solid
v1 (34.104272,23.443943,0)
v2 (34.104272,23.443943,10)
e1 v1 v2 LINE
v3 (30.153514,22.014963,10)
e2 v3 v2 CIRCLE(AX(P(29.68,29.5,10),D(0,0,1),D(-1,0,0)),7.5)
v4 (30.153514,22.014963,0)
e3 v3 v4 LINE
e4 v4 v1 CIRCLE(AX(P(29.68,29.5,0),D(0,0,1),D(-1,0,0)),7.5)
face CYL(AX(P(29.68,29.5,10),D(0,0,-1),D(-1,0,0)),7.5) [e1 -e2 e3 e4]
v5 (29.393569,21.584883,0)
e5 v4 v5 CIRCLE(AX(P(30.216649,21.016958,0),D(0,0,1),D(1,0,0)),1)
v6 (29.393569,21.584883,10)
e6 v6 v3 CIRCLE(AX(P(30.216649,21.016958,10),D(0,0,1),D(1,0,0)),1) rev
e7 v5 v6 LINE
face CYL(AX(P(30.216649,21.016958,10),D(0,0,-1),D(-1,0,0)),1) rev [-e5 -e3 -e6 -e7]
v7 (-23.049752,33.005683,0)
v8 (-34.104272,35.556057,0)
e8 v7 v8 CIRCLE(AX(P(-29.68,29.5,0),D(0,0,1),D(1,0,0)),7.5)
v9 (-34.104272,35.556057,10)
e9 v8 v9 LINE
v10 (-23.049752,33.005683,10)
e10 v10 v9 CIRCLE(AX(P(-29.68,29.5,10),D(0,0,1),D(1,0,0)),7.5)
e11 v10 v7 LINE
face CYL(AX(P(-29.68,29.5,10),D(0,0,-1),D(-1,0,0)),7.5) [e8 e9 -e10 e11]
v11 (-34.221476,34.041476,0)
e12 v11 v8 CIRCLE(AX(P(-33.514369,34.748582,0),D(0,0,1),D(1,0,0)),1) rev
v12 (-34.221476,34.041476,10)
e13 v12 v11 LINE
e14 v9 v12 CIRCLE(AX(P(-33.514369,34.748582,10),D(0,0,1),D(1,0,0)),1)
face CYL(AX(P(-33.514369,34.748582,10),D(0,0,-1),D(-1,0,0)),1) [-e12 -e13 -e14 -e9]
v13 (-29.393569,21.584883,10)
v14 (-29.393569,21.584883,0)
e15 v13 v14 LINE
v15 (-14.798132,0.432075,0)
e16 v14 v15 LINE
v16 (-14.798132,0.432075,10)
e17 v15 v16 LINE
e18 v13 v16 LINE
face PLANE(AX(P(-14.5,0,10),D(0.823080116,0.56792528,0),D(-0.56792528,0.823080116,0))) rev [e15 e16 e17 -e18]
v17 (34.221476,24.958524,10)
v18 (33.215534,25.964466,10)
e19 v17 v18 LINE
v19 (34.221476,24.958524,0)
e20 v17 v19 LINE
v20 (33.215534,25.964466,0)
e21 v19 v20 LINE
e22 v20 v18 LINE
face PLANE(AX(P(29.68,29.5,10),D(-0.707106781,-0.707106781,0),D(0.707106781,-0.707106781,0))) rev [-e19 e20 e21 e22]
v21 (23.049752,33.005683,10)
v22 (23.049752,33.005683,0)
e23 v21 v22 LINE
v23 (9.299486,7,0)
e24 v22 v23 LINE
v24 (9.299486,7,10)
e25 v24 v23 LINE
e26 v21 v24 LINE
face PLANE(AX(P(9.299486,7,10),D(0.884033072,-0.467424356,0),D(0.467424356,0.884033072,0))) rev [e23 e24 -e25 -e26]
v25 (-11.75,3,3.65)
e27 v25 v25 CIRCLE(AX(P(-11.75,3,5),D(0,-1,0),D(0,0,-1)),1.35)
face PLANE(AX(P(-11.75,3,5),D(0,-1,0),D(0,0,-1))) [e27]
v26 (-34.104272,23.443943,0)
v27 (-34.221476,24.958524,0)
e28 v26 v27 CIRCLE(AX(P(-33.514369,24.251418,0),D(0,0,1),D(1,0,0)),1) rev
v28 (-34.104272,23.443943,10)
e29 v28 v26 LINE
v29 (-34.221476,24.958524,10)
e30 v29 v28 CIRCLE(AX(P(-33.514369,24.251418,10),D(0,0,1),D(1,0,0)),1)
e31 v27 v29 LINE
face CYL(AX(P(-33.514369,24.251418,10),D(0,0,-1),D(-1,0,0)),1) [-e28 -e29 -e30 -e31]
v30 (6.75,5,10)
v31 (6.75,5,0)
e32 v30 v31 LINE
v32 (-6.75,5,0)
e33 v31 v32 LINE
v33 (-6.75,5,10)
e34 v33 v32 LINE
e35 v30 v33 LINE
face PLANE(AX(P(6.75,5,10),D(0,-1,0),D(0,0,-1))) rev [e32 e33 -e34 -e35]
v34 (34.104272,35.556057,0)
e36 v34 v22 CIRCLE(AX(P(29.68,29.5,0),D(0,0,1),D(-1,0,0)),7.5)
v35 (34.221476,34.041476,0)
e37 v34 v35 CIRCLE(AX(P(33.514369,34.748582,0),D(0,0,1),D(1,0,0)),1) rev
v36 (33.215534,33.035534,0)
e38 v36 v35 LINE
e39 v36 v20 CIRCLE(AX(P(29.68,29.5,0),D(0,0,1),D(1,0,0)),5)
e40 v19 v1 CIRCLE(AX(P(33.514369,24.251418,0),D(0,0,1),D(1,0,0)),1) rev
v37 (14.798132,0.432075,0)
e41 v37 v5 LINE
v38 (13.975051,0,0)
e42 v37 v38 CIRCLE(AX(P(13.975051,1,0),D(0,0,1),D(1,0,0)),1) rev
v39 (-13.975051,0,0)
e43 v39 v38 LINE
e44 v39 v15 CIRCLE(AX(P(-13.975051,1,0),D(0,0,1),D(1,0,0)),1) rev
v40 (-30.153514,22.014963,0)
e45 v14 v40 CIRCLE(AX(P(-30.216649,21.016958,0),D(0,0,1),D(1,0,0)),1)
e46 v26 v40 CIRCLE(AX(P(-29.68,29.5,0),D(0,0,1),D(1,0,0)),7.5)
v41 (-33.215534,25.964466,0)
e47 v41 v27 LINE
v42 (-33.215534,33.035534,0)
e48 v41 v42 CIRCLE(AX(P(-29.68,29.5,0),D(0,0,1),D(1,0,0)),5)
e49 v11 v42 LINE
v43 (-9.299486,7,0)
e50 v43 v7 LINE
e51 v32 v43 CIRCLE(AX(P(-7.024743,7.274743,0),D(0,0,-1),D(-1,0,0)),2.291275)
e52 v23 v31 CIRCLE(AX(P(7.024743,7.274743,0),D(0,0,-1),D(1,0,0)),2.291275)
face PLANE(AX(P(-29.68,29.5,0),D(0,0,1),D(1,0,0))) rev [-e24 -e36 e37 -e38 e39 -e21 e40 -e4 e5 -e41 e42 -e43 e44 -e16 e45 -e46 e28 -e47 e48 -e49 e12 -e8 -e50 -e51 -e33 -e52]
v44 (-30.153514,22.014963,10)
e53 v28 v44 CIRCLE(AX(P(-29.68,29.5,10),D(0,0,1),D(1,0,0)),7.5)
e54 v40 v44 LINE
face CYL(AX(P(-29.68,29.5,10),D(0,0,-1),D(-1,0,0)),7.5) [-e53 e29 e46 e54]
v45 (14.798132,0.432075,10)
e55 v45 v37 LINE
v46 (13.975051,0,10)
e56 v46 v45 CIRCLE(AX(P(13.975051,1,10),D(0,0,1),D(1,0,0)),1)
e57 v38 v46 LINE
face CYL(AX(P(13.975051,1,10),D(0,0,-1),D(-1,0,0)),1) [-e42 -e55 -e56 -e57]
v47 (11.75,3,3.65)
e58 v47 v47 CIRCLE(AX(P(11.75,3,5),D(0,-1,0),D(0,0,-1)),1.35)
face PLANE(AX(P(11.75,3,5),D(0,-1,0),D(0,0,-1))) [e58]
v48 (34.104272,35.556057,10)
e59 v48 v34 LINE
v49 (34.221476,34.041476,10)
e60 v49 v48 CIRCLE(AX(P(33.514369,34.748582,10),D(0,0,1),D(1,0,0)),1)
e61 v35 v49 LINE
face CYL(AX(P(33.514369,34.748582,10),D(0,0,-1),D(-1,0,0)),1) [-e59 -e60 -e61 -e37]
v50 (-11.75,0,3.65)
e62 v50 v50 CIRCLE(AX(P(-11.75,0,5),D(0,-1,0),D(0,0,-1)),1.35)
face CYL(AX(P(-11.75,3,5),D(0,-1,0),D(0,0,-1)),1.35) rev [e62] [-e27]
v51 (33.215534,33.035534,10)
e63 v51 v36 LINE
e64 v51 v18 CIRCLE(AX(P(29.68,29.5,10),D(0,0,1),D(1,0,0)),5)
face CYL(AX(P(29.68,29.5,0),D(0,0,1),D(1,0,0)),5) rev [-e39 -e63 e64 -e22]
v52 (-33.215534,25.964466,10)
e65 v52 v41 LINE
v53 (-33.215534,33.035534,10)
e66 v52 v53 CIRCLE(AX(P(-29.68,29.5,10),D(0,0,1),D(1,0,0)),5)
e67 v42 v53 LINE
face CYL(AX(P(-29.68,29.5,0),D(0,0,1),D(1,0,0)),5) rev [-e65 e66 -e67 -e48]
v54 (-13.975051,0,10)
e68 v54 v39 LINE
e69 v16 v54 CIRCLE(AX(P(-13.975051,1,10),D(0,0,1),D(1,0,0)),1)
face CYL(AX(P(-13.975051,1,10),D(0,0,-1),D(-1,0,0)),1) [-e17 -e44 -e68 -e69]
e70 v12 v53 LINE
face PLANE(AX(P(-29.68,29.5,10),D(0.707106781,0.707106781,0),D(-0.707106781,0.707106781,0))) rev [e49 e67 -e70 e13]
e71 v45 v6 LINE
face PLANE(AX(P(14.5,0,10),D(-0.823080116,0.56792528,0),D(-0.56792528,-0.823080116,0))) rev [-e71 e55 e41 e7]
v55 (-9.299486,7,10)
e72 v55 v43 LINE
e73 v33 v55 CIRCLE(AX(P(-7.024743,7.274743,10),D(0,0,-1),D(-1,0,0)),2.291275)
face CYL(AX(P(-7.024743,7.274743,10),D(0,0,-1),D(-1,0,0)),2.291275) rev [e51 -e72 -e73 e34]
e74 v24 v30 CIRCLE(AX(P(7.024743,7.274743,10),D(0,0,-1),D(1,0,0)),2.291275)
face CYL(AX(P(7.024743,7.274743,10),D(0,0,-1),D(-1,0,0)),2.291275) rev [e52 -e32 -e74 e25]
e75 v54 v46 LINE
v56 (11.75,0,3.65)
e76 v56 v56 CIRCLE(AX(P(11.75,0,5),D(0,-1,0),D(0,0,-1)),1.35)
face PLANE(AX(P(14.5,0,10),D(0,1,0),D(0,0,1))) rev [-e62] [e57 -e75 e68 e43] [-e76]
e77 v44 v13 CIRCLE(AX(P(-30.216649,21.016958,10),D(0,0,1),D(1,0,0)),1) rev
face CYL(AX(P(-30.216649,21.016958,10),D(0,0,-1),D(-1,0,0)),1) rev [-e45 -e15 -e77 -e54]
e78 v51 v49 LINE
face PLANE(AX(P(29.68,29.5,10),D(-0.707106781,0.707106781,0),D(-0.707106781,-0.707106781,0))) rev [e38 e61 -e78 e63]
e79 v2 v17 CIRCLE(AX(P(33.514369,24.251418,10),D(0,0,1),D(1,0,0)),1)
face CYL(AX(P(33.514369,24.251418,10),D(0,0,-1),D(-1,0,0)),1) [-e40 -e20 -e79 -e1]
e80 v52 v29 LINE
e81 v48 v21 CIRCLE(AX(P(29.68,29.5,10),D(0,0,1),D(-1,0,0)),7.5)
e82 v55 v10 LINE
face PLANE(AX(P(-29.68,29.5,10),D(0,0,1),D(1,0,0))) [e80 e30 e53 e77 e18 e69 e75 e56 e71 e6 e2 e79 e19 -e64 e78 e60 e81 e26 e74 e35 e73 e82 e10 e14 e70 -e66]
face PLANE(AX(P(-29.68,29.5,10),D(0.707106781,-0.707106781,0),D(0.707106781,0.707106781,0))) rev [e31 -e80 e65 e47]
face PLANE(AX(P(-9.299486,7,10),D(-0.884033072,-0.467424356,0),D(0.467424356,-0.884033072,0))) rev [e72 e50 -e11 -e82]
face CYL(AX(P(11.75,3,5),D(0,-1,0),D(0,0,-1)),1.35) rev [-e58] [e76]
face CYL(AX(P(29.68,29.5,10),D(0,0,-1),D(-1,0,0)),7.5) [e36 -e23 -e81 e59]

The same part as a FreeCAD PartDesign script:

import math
import FreeCAD as App
import Part
import Sketcher

V = App.Vector


def edges_at(feature, points):
    """Names of the edges that pass closest to the given points."""
    edges = feature.Shape.Edges
    near = lambda p: min(range(len(edges)), key=lambda i: edges[i].distToShape(Part.Vertex(*p))[0])
    return sorted({f"Edge{near(p) + 1}" for p in points})

doc = App.newDocument("Part")
params = doc.addObject("Spreadsheet::Sheet", "Params")
for row, (alias, value) in enumerate([
    ("sketch1_radius", "7.5 mm"),
    ("sketch1_width", "29 mm"),
    ("sketch1_width2", "13.5 mm"),
    ("pad1_length", "10 mm"),
    ("sketch2_diameter", "10 mm"),
    ("pocket1_length", "10 mm"),
    ("sketch3_diameter", "2.7 mm"),
    ("pocket2_length", "3 mm"),
    ("fillet_radius", "1 mm"),
    ("fillet2_radius", "1 mm"),
], start=1):
    params.set(f"A{row}", alias)
    params.set(f"B{row}", "=" + value)
    params.setAlias(f"B{row}", alias)

body = doc.addObject("PartDesign::Body", "Body")

sketch1 = body.newObject("Sketcher::SketchObject", "Sketch")
sketch1.AttachmentSupport = (doc.getObject("XY_Plane"), [""])
sketch1.MapMode = "FlatFace"
sketch1.addGeometry(Part.LineSegment(V(-14.5, 0, 0), V(14.5, 0, 0)), False)
sketch1.addGeometry(Part.LineSegment(V(14.5, 0, 0), V(29.7, 22, 0)), False)
sketch1.addGeometry(Part.ArcOfCircle(Part.Circle(V(29.7, 29.5, 0), V(0, 0, 1), 7.5), math.radians(-90), math.radians(-45)), False)
sketch1.addGeometry(Part.LineSegment(V(35, 24.2, 0), V(29.7, 29.5, 0)), False)
sketch1.addGeometry(Part.LineSegment(V(29.7, 29.5, 0), V(35, 34.8, 0)), False)
sketch1.addGeometry(Part.ArcOfCircle(Part.Circle(V(29.7, 29.5, 0), V(0, 0, 1), 7.5), math.radians(45), math.radians(152)), False)
sketch1.addGeometry(Part.LineSegment(V(23, 33, 0), V(9.3, 7, 0)), False)
sketch1.addGeometry(Part.ArcOfCircle(Part.Circle(V(7, 7.3, 0), V(0, 0, 1), 2.3), math.radians(-97), math.radians(-7)), False)
sketch1.addGeometry(Part.LineSegment(V(6.8, 5, 0), V(-6.8, 5, 0)), False)
sketch1.addGeometry(Part.ArcOfCircle(Part.Circle(V(-7, 7.3, 0), V(0, 0, 1), 2.3), math.radians(-173), math.radians(-83)), False)
sketch1.addGeometry(Part.LineSegment(V(-9.3, 7, 0), V(-23, 33, 0)), False)
sketch1.addGeometry(Part.ArcOfCircle(Part.Circle(V(-29.7, 29.5, 0), V(0, 0, 1), 7.5), math.radians(28), math.radians(135)), False)
sketch1.addGeometry(Part.LineSegment(V(-35, 34.8, 0), V(-29.7, 29.5, 0)), False)
sketch1.addGeometry(Part.LineSegment(V(-29.7, 29.5, 0), V(-35, 24.2, 0)), False)
sketch1.addGeometry(Part.ArcOfCircle(Part.Circle(V(-29.7, 29.5, 0), V(0, 0, 1), 7.5), math.radians(-135), math.radians(-90)), False)
sketch1.addGeometry(Part.LineSegment(V(-29.7, 22, 0), V(-14.5, 0, 0)), False)
sketch1.addConstraint(Sketcher.Constraint("Coincident", 0, 2, 1, 1))
sketch1.addConstraint(Sketcher.Constraint("Coincident", 1, 2, 2, 1))
sketch1.addConstraint(Sketcher.Constraint("Coincident", 2, 2, 3, 1))
sketch1.addConstraint(Sketcher.Constraint("Coincident", 3, 2, 4, 1))
sketch1.addConstraint(Sketcher.Constraint("Coincident", 4, 2, 5, 1))
sketch1.addConstraint(Sketcher.Constraint("Tangent", 5, 2, 6, 1))
sketch1.addConstraint(Sketcher.Constraint("Coincident", 6, 2, 7, 2))
sketch1.addConstraint(Sketcher.Constraint("Coincident", 7, 1, 8, 1))
sketch1.addConstraint(Sketcher.Constraint("Coincident", 8, 2, 9, 2))
sketch1.addConstraint(Sketcher.Constraint("Coincident", 9, 1, 10, 1))
sketch1.addConstraint(Sketcher.Constraint("Tangent", 10, 2, 11, 1))
sketch1.addConstraint(Sketcher.Constraint("Coincident", 11, 2, 12, 1))
sketch1.addConstraint(Sketcher.Constraint("Coincident", 12, 2, 13, 1))
sketch1.addConstraint(Sketcher.Constraint("Coincident", 13, 2, 14, 1))
sketch1.addConstraint(Sketcher.Constraint("Coincident", 14, 2, 15, 1))
sketch1.addConstraint(Sketcher.Constraint("Coincident", 15, 2, 0, 1))
sketch1.addConstraint(Sketcher.Constraint("Horizontal", 0))
sketch1.addConstraint(Sketcher.Constraint("Horizontal", 8))
sketch1.addConstraint(Sketcher.Constraint("Coincident", 5, 3, 2, 3))
sketch1.addConstraint(Sketcher.Constraint("Coincident", 14, 3, 11, 3))
sketch1.addConstraint(Sketcher.Constraint("Coincident", 3, 2, 2, 3))
sketch1.addConstraint(Sketcher.Constraint("Coincident", 12, 2, 11, 3))
sketch1.addConstraint(Sketcher.Constraint("Equal", 2, 5))
sketch1.addConstraint(Sketcher.Constraint("Equal", 7, 9))
sketch1.addConstraint(Sketcher.Constraint("Equal", 5, 11))
sketch1.addConstraint(Sketcher.Constraint("Equal", 11, 14))
sketch1.addConstraint(Sketcher.Constraint("Symmetric", 0, 2, 15, 2, -1, 1))
sketch1.addConstraint(Sketcher.Constraint("Symmetric", 7, 3, 9, 3, -2))
sketch1.addConstraint(Sketcher.Constraint("Symmetric", 2, 3, 11, 3, -2))
sketch1.addConstraint(Sketcher.Constraint("Perpendicular", 3, 4))
sketch1.addConstraint(Sketcher.Constraint("Perpendicular", 4, 12))
sketch1.addConstraint(Sketcher.Constraint("Perpendicular", 12, 13))
sketch1.addConstraint(Sketcher.Constraint("Horizontal", 6, 2, 9, 1))
sketch1.addConstraint(Sketcher.Constraint("Horizontal", 4, 2, 11, 2))
sketch1.addConstraint(Sketcher.Constraint("Vertical", 5, 3, 1, 2))
sketch1.addConstraint(Sketcher.Constraint("Vertical", 12, 2, 14, 2))
sketch1.addConstraint(Sketcher.Constraint("Radius", 2, 7.5))
sketch1.addConstraint(Sketcher.Constraint("DistanceX", 0, 1, 0, 2, 29.0))
sketch1.addConstraint(Sketcher.Constraint("DistanceX", 8, 2, 8, 1, 13.5))
sketch1.addConstraint(Sketcher.Constraint("DistanceY", -1, 1, 1, 2, 22.0))
sketch1.addConstraint(Sketcher.Constraint("DistanceY", -1, 1, 6, 2, 7.0))
sketch1.addConstraint(Sketcher.Constraint("DistanceY", -1, 1, 7, 1, 5.0))
sketch1.addConstraint(Sketcher.Constraint("DistanceX", -1, 1, 2, 3, 29.68))
sketch1.addConstraint(Sketcher.Constraint("Radius", 7, 2.291275))
sketch1.addConstraint(Sketcher.Constraint("DistanceX", -1, 1, 5, 2, 23.049752))
sketch1.setExpression("Constraints[36]", "Params.sketch1_radius")
sketch1.setExpression("Constraints[37]", "Params.sketch1_width")
sketch1.setExpression("Constraints[38]", "Params.sketch1_width2")
pad1 = body.newObject("PartDesign::Pad", "Pad")
pad1.Profile = sketch1
pad1.setExpression("Length", "Params.pad1_length")

sketch2 = body.newObject("Sketcher::SketchObject", "Sketch001")
sketch2.AttachmentSupport = (doc.getObject("XY_Plane"), [""])
sketch2.MapMode = "FlatFace"
sketch2.AttachmentOffset = App.Placement(V(0, 0, 10), App.Rotation())
sketch2.addGeometry(Part.Circle(V(-30, 30, 0), V(0, 0, 1), 5), False)
sketch2.addGeometry(Part.Circle(V(30, 30, 0), V(0, 0, 1), 5), False)
sketch2.addConstraint(Sketcher.Constraint("Equal", 0, 1))
sketch2.addConstraint(Sketcher.Constraint("Symmetric", 0, 3, 1, 3, -2))
sketch2.addConstraint(Sketcher.Constraint("Diameter", 0, 10.0))
sketch2.addConstraint(Sketcher.Constraint("DistanceY", -1, 1, 0, 3, 29.5))
sketch2.addConstraint(Sketcher.Constraint("DistanceX", 0, 3, -1, 1, 29.68))
sketch2.setExpression("Constraints[2]", "Params.sketch2_diameter")
pocket1 = body.newObject("PartDesign::Pocket", "Pocket")
pocket1.Profile = sketch2
pocket1.setExpression("Length", "Params.pocket1_length")

sketch3 = body.newObject("Sketcher::SketchObject", "Sketch002")
sketch3.AttachmentSupport = (doc.getObject("XZ_Plane"), [""])
sketch3.MapMode = "FlatFace"
sketch3.addGeometry(Part.Circle(V(-11.8, 5, 0), V(0, 0, 1), 1.4), False)
sketch3.addGeometry(Part.Circle(V(11.8, 5, 0), V(0, 0, 1), 1.4), False)
sketch3.addConstraint(Sketcher.Constraint("Equal", 0, 1))
sketch3.addConstraint(Sketcher.Constraint("Symmetric", 0, 3, 1, 3, -2))
sketch3.addConstraint(Sketcher.Constraint("Diameter", 0, 2.7))
sketch3.addConstraint(Sketcher.Constraint("DistanceY", -1, 1, 0, 3, 5.0))
sketch3.addConstraint(Sketcher.Constraint("DistanceX", 0, 3, 1, 3, 23.5))
sketch3.setExpression("Constraints[2]", "Params.sketch3_diameter")
pocket2 = body.newObject("PartDesign::Pocket", "Pocket001")
pocket2.Profile = sketch3
pocket2.setExpression("Length", "Params.pocket2_length")
doc.recompute()

fillet = body.newObject("PartDesign::Fillet", "Fillet")
fillet.Base = (pocket2, edges_at(pocket2, [(-34.983, 24.197, 5), (-34.983, 34.803, 5)]))
fillet.setExpression("Radius", "Params.fillet_radius")
doc.recompute()

fillet2 = body.newObject("PartDesign::Fillet", "Fillet001")
fillet2.Base = (fillet, edges_at(fillet, [
    (-29.68, 22, 5),
    (34.983, 34.803, 5),
    (34.983, 24.197, 5),
    (29.68, 22, 5),
    (14.5, 0, 5),
    (-14.5, 0, 5),
]))
fillet2.setExpression("Radius", "Params.fillet2_radius")

doc.recompute()
